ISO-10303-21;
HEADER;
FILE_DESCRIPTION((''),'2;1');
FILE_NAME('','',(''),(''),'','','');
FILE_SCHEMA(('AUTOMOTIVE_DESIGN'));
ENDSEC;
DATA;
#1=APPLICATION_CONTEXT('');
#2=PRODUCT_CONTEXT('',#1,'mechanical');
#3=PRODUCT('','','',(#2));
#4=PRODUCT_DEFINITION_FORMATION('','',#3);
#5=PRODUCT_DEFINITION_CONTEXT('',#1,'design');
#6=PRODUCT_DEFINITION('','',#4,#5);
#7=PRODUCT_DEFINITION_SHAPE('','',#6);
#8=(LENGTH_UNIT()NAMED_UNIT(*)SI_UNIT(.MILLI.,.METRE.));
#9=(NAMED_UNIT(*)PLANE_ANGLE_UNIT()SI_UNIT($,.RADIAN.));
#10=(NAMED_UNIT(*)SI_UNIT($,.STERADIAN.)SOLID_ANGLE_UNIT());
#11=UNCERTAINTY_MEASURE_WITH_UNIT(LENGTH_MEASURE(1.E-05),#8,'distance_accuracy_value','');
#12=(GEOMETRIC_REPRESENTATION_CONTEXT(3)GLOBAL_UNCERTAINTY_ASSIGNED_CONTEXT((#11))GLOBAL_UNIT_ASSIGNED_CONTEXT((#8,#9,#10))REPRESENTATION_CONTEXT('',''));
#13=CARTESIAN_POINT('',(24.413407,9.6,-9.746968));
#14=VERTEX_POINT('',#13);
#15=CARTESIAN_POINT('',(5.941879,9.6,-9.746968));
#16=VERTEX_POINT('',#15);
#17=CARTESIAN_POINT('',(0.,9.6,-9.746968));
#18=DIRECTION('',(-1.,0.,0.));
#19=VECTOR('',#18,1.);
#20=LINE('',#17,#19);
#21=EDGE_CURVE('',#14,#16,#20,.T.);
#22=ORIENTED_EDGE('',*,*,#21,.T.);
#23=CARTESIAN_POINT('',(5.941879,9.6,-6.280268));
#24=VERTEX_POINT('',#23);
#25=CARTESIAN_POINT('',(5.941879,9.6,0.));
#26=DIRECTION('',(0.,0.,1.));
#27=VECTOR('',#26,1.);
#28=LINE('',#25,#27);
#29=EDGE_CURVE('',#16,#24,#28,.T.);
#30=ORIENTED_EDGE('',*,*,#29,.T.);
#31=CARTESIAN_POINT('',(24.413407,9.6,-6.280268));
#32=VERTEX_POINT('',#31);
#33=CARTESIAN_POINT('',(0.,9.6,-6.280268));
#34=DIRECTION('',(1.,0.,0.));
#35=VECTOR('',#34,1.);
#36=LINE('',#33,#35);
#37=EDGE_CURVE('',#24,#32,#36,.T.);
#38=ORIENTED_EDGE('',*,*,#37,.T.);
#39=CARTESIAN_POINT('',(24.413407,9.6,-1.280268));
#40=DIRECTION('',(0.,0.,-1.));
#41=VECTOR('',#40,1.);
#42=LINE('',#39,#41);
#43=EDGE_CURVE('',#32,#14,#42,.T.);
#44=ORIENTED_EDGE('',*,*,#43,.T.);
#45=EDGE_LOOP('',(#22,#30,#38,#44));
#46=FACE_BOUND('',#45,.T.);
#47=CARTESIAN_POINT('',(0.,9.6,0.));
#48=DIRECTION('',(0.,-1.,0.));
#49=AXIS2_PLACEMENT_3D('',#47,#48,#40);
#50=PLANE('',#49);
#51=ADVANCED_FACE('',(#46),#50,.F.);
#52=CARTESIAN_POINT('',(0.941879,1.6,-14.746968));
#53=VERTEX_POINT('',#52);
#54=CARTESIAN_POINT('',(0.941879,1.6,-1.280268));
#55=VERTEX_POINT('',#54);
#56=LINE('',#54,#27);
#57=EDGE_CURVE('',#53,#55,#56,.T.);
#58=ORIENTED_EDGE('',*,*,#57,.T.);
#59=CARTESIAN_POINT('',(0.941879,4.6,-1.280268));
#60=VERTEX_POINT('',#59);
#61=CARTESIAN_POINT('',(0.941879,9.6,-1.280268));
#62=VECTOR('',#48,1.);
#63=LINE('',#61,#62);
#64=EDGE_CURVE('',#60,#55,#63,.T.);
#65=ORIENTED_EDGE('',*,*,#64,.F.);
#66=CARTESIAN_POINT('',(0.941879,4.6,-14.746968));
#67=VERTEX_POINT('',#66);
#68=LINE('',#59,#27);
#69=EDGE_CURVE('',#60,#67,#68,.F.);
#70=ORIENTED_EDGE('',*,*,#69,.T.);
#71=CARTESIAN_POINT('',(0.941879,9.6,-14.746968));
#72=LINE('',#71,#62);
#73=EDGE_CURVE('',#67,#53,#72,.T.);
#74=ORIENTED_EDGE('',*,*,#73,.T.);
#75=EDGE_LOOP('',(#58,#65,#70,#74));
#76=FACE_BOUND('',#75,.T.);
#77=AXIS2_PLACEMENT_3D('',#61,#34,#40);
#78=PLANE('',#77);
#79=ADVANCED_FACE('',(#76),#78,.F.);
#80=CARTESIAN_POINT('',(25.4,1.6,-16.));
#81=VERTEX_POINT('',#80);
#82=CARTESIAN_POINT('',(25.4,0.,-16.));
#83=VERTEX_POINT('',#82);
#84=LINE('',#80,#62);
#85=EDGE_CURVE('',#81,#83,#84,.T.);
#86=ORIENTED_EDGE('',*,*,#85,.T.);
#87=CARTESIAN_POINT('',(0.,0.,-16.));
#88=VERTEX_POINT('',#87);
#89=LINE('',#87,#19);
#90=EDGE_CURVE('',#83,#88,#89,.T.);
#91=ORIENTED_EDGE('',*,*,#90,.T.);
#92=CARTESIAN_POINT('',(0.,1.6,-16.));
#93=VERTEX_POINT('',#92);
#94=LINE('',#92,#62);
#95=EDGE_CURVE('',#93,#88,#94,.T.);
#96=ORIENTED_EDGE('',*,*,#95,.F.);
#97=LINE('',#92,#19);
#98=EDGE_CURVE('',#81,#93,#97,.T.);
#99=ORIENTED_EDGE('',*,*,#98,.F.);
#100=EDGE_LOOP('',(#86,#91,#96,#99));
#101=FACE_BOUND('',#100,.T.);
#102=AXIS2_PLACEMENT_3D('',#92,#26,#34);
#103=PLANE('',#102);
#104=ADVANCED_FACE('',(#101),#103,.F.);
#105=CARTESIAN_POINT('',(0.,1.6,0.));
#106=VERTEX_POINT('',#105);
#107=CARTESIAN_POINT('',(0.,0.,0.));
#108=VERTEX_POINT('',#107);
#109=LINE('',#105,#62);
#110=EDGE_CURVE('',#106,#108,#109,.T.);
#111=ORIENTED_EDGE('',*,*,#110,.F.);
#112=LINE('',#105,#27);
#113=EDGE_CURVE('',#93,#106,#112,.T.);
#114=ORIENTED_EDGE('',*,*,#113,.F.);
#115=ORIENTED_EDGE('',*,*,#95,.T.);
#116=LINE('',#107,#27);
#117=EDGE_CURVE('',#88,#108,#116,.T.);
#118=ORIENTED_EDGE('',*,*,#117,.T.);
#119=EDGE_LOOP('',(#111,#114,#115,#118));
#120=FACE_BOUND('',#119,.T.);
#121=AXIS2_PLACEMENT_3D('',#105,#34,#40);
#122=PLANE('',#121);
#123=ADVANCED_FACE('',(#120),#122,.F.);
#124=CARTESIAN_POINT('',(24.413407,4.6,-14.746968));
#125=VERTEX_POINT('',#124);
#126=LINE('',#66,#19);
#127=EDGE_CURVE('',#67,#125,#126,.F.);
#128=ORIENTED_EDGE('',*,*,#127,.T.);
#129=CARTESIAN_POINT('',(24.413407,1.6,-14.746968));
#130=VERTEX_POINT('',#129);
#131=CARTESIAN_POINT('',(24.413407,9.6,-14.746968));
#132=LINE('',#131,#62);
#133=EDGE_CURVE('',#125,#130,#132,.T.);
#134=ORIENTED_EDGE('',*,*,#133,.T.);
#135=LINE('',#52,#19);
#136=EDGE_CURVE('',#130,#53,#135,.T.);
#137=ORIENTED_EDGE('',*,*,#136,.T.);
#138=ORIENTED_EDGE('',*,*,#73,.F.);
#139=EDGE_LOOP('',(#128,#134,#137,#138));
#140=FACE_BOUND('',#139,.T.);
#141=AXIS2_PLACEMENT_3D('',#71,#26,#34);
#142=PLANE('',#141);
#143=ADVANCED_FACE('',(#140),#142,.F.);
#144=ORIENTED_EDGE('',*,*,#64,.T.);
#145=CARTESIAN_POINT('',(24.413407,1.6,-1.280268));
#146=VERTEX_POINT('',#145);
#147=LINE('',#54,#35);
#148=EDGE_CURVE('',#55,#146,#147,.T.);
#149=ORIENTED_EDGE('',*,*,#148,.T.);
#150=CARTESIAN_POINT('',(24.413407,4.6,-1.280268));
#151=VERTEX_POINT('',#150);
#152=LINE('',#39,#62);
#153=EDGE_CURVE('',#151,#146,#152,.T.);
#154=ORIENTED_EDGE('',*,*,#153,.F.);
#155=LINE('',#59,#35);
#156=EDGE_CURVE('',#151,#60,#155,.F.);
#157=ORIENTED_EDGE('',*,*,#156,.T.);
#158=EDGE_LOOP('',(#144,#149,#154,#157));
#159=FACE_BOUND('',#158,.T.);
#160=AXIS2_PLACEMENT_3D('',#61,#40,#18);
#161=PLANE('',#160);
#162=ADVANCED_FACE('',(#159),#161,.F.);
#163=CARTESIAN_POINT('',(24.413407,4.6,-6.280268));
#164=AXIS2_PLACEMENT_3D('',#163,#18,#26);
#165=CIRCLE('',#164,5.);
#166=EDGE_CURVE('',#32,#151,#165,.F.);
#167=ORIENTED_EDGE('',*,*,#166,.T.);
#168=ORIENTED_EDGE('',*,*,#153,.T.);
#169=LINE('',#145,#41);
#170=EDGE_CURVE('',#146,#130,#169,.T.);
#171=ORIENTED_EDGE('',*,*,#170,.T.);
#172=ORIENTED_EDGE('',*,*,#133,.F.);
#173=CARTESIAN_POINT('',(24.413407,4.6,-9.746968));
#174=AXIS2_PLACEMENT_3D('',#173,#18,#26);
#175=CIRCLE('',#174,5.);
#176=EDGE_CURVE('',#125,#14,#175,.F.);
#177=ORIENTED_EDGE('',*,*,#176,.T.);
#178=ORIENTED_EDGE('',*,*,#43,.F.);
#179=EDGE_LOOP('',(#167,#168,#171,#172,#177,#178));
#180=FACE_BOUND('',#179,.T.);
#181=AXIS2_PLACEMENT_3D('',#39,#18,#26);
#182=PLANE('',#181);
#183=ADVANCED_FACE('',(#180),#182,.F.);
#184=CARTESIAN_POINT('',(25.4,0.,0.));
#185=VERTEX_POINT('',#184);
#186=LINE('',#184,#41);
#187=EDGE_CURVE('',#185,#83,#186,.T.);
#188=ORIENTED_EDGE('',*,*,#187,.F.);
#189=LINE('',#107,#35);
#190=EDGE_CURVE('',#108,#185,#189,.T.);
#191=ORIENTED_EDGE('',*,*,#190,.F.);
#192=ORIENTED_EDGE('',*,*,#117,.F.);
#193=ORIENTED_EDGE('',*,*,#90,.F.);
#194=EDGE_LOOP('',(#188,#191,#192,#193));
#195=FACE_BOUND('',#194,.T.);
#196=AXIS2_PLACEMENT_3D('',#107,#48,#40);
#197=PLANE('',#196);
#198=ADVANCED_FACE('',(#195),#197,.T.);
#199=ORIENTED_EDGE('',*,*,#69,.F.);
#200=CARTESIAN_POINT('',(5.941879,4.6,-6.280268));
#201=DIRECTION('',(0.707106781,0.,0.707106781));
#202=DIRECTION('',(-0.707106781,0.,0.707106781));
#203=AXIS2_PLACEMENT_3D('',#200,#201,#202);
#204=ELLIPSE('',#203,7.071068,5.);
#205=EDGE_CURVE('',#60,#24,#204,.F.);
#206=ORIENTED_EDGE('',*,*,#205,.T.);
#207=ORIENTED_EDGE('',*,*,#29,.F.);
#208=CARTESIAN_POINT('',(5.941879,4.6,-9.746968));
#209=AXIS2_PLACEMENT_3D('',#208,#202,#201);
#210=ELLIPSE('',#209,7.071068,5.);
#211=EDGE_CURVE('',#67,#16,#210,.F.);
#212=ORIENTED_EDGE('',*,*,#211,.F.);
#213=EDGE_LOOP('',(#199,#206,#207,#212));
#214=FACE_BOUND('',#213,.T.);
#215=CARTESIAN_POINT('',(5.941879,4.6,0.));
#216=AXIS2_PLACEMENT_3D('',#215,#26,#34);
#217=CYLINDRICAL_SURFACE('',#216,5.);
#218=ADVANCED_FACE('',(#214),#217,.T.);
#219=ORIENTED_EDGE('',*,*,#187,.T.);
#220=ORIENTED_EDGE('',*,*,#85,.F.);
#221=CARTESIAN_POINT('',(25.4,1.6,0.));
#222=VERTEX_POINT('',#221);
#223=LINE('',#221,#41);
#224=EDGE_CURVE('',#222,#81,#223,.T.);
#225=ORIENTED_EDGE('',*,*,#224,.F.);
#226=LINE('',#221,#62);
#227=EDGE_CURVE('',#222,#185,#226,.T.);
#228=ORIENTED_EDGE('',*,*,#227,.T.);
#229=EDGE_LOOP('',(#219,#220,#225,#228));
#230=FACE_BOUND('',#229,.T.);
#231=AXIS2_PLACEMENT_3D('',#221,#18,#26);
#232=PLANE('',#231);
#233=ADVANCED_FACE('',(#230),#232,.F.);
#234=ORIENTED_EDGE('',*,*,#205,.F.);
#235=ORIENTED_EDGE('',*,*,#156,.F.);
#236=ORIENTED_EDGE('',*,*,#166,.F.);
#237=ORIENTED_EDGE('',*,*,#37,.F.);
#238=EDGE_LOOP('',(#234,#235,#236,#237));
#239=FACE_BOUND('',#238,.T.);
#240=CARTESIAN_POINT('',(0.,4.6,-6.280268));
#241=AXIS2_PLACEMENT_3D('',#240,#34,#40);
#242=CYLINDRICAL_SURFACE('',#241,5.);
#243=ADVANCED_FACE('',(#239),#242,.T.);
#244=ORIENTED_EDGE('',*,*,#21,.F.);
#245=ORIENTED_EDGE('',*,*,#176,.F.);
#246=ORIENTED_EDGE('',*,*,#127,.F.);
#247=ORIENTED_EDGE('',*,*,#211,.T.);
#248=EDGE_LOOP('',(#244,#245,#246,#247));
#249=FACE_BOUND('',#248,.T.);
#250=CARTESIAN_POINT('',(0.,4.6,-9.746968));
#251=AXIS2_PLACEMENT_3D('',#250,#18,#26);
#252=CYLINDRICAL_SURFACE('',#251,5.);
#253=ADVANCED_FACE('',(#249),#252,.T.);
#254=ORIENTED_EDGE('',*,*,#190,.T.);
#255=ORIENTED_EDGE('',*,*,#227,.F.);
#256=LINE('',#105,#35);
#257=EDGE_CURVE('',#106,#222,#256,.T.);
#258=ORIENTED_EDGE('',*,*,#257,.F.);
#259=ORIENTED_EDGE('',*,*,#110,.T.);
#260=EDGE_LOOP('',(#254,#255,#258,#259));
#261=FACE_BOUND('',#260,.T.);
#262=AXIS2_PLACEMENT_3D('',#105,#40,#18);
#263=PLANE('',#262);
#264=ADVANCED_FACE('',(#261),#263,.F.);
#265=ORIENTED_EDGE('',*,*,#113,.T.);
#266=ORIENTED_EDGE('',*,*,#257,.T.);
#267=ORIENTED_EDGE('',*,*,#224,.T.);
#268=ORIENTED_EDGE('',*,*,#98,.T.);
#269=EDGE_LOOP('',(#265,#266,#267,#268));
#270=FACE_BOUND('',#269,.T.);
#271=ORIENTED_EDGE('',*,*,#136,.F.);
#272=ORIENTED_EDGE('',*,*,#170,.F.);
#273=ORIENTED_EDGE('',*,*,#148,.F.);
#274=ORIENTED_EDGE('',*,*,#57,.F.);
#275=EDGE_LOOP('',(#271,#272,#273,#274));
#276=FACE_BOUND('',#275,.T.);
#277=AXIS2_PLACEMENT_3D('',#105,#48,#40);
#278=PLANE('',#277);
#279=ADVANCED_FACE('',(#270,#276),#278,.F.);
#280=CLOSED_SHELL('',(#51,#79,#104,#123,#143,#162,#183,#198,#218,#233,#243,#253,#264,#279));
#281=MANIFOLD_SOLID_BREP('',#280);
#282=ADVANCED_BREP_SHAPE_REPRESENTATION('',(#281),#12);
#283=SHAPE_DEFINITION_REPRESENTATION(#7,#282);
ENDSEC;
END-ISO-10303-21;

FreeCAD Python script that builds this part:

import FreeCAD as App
import Part
import Sketcher
from FreeCAD import Vector


def edges_at(feature, points):
    """Names of the edges that pass closest to the given points."""
    edges = feature.Shape.Edges
    near = lambda p: min(range(len(edges)), key=lambda i: edges[i].distToShape(Part.Vertex(*p))[0])
    return sorted({f"Edge{near(p) + 1}" for p in points})


def add_polygon(sketch, points):
    """Adds a closed chain of lines whose ends are joined by coincident constraints."""
    first, n = sketch.GeometryCount, len(points)
    for a, b in zip(points, points[1:] + points[:1]):
        sketch.addGeometry(Part.LineSegment(App.Vector(*a, 0), App.Vector(*b, 0)), False)
    for i in range(n):
        sketch.addConstraint(Sketcher.Constraint("Coincident", first + i, 2, first + (i + 1) % n, 1))

doc = App.newDocument("Part")
body = doc.addObject("PartDesign::Body", "Body")

# Sketch on XZ plane
sketch1 = body.newObject("Sketcher::SketchObject", "Sketch")
sketch1.AttachmentSupport = (doc.getObject("XZ_Plane"), [""])
sketch1.MapMode = "FlatFace"
add_polygon(sketch1, [(0, -16), (0, 0), (25, 0), (25, -16)])  # lines 0-3
sketch1.addConstraint(Sketcher.Constraint("Vertical", 0))
sketch1.addConstraint(Sketcher.Constraint("Horizontal", 1))
sketch1.addConstraint(Sketcher.Constraint("Vertical", 2))
sketch1.addConstraint(Sketcher.Constraint("Horizontal", 3))
sketch1.addConstraint(Sketcher.Constraint("Coincident", 0, 2, -1, 1))
sketch1.addConstraint(Sketcher.Constraint("DistanceY", 0, 1, 0, 2, 16.0))
sketch1.addConstraint(Sketcher.Constraint("DistanceX", 1, 1, 1, 2, 25.4))
pad1 = body.newObject("PartDesign::Pad", "Pad")
pad1.Profile = sketch1
pad1.Length = 1.6
pad1.Reversed = True

# Sketch on XZ plane
sketch2 = body.newObject("Sketcher::SketchObject", "Sketch001")
sketch2.AttachmentSupport = (doc.getObject("XZ_Plane"), [""])
sketch2.MapMode = "FlatFace"
sketch2.AttachmentOffset = App.Placement(Vector(0, 0, -1.6), App.Rotation())
add_polygon(sketch2, [(1, -15), (1, -1), (24, -1), (24, -15)])  # lines 0-3
sketch2.addConstraint(Sketcher.Constraint("Vertical", 0))
sketch2.addConstraint(Sketcher.Constraint("Horizontal", 1))
sketch2.addConstraint(Sketcher.Constraint("Vertical", 2))
sketch2.addConstraint(Sketcher.Constraint("Horizontal", 3))
sketch2.addConstraint(Sketcher.Constraint("DistanceY", 0, 1, 0, 2, 13.4667))
sketch2.addConstraint(Sketcher.Constraint("DistanceX", 1, 1, 1, 2, 23.471528))
sketch2.addConstraint(Sketcher.Constraint("DistanceX", -1, 1, 0, 2, 0.941879))
sketch2.addConstraint(Sketcher.Constraint("DistanceY", 0, 2, -1, 1, 1.280268))
pad2 = body.newObject("PartDesign::Pad", "Pad001")
pad2.Profile = sketch2
pad2.Length = 8
pad2.Reversed = True
doc.recompute()

fillet = body.newObject("PartDesign::Fillet", "Fillet")
fillet.Base = (pad2, edges_at(pad2, [(0.942, 9.6, -8.014), (12.678, 9.6, -1.28), (12.678, 9.6, -14.747)]))
fillet.Radius = 5

doc.recompute()
